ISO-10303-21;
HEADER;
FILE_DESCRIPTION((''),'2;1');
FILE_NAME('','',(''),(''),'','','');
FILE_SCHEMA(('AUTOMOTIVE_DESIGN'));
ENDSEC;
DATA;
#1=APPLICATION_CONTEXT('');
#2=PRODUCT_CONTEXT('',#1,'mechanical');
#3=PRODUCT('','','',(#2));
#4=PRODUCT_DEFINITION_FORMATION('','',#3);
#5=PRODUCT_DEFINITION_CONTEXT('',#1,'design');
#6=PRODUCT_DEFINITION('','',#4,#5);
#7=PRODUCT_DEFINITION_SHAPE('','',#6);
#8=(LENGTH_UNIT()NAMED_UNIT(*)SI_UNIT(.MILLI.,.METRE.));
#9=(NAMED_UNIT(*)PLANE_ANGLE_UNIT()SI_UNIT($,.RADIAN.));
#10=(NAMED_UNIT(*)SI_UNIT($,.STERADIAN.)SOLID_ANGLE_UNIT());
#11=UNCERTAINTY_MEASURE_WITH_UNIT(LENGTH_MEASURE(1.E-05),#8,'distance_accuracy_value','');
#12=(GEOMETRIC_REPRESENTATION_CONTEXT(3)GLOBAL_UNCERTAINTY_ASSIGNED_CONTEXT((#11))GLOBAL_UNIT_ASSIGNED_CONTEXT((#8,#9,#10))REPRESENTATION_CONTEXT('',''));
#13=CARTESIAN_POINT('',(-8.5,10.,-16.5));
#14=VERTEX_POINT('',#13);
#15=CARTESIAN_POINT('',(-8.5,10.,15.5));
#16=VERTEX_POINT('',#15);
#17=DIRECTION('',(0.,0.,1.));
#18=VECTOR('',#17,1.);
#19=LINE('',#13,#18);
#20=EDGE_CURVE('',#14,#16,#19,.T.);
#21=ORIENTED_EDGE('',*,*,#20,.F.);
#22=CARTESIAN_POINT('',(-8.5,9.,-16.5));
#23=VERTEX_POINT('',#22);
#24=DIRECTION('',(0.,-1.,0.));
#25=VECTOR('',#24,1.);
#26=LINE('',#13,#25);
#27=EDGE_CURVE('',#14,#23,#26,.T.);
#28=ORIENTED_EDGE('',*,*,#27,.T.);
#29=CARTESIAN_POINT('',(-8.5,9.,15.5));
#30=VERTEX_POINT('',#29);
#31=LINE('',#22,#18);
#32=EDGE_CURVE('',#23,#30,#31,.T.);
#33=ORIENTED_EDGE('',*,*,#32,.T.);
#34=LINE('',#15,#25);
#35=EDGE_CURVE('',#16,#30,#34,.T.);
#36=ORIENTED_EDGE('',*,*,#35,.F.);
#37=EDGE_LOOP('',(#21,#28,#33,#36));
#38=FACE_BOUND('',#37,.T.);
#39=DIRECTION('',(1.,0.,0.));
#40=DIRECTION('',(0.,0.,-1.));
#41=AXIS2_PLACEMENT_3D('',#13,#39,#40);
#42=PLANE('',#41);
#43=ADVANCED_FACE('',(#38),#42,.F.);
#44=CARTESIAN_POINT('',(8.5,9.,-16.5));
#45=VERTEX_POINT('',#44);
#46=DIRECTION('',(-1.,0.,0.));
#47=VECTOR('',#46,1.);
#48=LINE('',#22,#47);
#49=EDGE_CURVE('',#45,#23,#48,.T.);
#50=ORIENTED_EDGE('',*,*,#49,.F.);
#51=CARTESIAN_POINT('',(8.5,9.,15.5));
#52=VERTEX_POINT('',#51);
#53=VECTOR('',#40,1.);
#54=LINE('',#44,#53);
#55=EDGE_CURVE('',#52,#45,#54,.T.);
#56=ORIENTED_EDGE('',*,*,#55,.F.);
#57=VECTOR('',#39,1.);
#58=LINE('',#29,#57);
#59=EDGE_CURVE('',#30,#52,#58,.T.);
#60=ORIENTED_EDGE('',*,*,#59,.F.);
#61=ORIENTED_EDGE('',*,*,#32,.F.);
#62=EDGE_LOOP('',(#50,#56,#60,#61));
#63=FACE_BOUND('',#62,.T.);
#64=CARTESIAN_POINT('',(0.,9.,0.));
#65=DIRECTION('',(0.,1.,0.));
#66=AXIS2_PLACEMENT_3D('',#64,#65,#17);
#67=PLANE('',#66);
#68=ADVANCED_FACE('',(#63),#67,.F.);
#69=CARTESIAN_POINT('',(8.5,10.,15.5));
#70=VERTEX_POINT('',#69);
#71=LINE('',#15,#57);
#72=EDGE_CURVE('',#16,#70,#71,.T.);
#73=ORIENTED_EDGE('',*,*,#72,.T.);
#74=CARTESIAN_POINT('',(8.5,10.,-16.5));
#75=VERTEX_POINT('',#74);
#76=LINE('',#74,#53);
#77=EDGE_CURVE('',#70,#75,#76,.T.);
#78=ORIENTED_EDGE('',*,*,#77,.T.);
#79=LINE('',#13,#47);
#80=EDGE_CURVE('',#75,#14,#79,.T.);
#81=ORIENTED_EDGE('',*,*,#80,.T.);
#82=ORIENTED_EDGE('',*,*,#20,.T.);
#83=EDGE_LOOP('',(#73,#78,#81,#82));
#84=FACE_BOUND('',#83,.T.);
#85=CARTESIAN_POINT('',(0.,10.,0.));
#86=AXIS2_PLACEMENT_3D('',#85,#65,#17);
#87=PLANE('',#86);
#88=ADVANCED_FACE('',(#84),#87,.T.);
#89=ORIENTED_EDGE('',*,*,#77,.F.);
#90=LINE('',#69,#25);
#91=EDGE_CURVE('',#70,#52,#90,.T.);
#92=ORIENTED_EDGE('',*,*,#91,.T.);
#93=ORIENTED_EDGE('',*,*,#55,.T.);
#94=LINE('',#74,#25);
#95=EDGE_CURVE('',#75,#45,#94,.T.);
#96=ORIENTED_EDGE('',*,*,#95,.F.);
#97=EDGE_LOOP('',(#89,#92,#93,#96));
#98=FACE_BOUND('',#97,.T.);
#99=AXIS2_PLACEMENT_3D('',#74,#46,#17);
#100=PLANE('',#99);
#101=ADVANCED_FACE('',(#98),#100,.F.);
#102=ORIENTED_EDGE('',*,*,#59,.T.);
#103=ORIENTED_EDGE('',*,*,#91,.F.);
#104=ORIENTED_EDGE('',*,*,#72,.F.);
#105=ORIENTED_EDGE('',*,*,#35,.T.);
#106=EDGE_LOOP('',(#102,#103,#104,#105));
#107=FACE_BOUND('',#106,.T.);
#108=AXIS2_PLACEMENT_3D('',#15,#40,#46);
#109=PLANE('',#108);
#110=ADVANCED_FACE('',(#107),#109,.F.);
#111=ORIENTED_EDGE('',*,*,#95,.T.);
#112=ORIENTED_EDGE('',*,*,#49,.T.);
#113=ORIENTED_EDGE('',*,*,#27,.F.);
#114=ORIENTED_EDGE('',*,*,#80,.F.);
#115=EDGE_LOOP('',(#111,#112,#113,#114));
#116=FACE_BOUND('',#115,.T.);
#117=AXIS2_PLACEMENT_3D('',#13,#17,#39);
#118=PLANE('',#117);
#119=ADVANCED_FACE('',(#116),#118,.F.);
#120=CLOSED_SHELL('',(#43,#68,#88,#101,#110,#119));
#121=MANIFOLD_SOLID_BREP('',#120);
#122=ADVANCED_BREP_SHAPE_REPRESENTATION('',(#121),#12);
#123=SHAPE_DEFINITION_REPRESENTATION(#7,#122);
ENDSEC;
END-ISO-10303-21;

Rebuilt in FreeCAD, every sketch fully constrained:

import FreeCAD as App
import Part
import Sketcher
Q = App.Units.Quantity

doc = App.newDocument("Part")
params = doc.addObject("Spreadsheet::Sheet", "Params")
for row, (alias, value) in enumerate([
    ("sketch1_width", "17 mm"),
    ("sketch1_height", "33 mm"),
    ("pad1_length", "10 mm"),
    ("sketch2_width", "15 mm"),
    ("sketch2_height", "32 mm"),
    ("pocket1_length", "8 mm"),
    ("sketch3_diameter", "6 mm"),
    ("sketch4_width", "17 mm"),
    ("sketch4_height", "32 mm"),
    ("pocket3_length", "8 mm"),
    ("sketch5_width", "17 mm"),
    ("sketch5_height", "33 mm"),
    ("pocket4_length", "9 mm"),
    ("sketch6_width", "17 mm"),
    ("sketch6_height", "1 mm"),
    ("pocket5_length", "1 mm"),
    ("sketch7_width", "17 mm"),
    ("sketch7_height", "32 mm"),
    ("pad2_length", "1 mm"),
], start=1):
    params.set(f"A{row}", alias)
    params.set(f"B{row}", "=" + value)
    params.setAlias(f"B{row}", alias)

body = doc.addObject("PartDesign::Body", "Body")

# Sketch on XZ plane
sketch1 = body.newObject("Sketcher::SketchObject", "Sketch")
sketch1.AttachmentSupport = (doc.getObject("XZ_Plane"), [""])
sketch1.MapMode = "FlatFace"
sketch1.addGeometry([
    Part.LineSegment(App.Vector(-8, -16, 0), App.Vector(-8, 16, 0)),
    Part.LineSegment(App.Vector(-8, 16, 0), App.Vector(8, 16, 0)),
    Part.LineSegment(App.Vector(8, 16, 0), App.Vector(8, -16, 0)),
    Part.LineSegment(App.Vector(8, -16, 0), App.Vector(-8, -16, 0)),
], False)
sketch1.addConstraint([
    Sketcher.Constraint("Coincident", 0, 2, 1, 1),
    Sketcher.Constraint("Coincident", 1, 2, 2, 1),
    Sketcher.Constraint("Coincident", 2, 2, 3, 1),
    Sketcher.Constraint("Coincident", 3, 2, 0, 1),
    Sketcher.Constraint("Vertical", 0),
    Sketcher.Constraint("Horizontal", 1),
    Sketcher.Constraint("Vertical", 2),
    Sketcher.Constraint("Horizontal", 3),
    Sketcher.Constraint("Symmetric", 0, 2, 2, 2, -1, 1),
    Sketcher.Constraint("DistanceX", 1, 1, 1, 2, Q("17 mm")),
    Sketcher.Constraint("DistanceY", 0, 1, 0, 2, Q("33 mm")),
])
sketch1.setExpression("Constraints[9]", "Params.sketch1_width")
sketch1.setExpression("Constraints[10]", "Params.sketch1_height")
pad1 = body.newObject("PartDesign::Pad", "Pad")
pad1.Profile = sketch1
pad1.setExpression("Length", "Params.pad1_length")
pad1.Reversed = True

# Sketch on XZ plane
sketch2 = body.newObject("Sketcher::SketchObject", "Sketch001")
sketch2.AttachmentSupport = (doc.getObject("XZ_Plane"), [""])
sketch2.MapMode = "FlatFace"
sketch2.AttachmentOffset = App.Placement(App.Vector(0, 0, -1), App.Rotation())
sketch2.addGeometry([
    Part.LineSegment(App.Vector(-8, -16, 0), App.Vector(-8, 16, 0)),
    Part.LineSegment(App.Vector(-8, 16, 0), App.Vector(8, 16, 0)),
    Part.LineSegment(App.Vector(8, 16, 0), App.Vector(8, -16, 0)),
    Part.LineSegment(App.Vector(8, -16, 0), App.Vector(-8, -16, 0)),
], False)
sketch2.addConstraint([
    Sketcher.Constraint("Coincident", 0, 2, 1, 1),
    Sketcher.Constraint("Coincident", 1, 2, 2, 1),
    Sketcher.Constraint("Coincident", 2, 2, 3, 1),
    Sketcher.Constraint("Coincident", 3, 2, 0, 1),
    Sketcher.Constraint("Vertical", 0),
    Sketcher.Constraint("Horizontal", 1),
    Sketcher.Constraint("Vertical", 2),
    Sketcher.Constraint("Horizontal", 3),
    Sketcher.Constraint("DistanceX", 1, 1, 1, 2, Q("15 mm")),
    Sketcher.Constraint("DistanceY", 0, 1, 0, 2, Q("32 mm")),
    Sketcher.Constraint("DistanceX", 0, 2, -1, 1, Q("7.5 mm")),
    Sketcher.Constraint("DistanceY", -1, 1, 0, 2, Q("15.5 mm")),
])
sketch2.setExpression("Constraints[8]", "Params.sketch2_width")
sketch2.setExpression("Constraints[9]", "Params.sketch2_height")
pocket1 = body.newObject("PartDesign::Pocket", "Pocket")
pocket1.Profile = sketch2
pocket1.setExpression("Length", "Params.pocket1_length")

# Sketch on XY plane
sketch3 = body.newObject("Sketcher::SketchObject", "Sketch002")
sketch3.AttachmentSupport = (doc.getObject("XY_Plane"), [""])
sketch3.MapMode = "FlatFace"
sketch3.addGeometry(Part.Circle(App.Vector(0, 6, 0), App.Vector(0, 0, 1), 3), False)
sketch3.addConstraint([
    Sketcher.Constraint("PointOnObject", 0, 3, -2),
    Sketcher.Constraint("Diameter", 0, Q("6 mm")),
    Sketcher.Constraint("DistanceY", -1, 1, 0, 3, Q("6 mm")),
])
sketch3.setExpression("Constraints[1]", "Params.sketch3_diameter")
pocket2 = body.newObject("PartDesign::Pocket", "Pocket001")
pocket2.Profile = sketch3
pocket2.Type = "ThroughAll"
pocket2.Reversed = True

# Sketch on XZ plane
sketch4 = body.newObject("Sketcher::SketchObject", "Sketch003")
sketch4.AttachmentSupport = (doc.getObject("XZ_Plane"), [""])
sketch4.MapMode = "FlatFace"
sketch4.AttachmentOffset = App.Placement(App.Vector(0, 0, -9), App.Rotation())
sketch4.addGeometry([
    Part.LineSegment(App.Vector(-8, -16, 0), App.Vector(-8, 16, 0)),
    Part.LineSegment(App.Vector(-8, 16, 0), App.Vector(8, 16, 0)),
    Part.LineSegment(App.Vector(8, 16, 0), App.Vector(8, -16, 0)),
    Part.LineSegment(App.Vector(8, -16, 0), App.Vector(-8, -16, 0)),
], False)
sketch4.addConstraint([
    Sketcher.Constraint("Coincident", 0, 2, 1, 1),
    Sketcher.Constraint("Coincident", 1, 2, 2, 1),
    Sketcher.Constraint("Coincident", 2, 2, 3, 1),
    Sketcher.Constraint("Coincident", 3, 2, 0, 1),
    Sketcher.Constraint("Vertical", 0),
    Sketcher.Constraint("Horizontal", 1),
    Sketcher.Constraint("Vertical", 2),
    Sketcher.Constraint("Horizontal", 3),
    Sketcher.Constraint("DistanceX", 1, 1, 1, 2, Q("17 mm")),
    Sketcher.Constraint("DistanceY", 0, 1, 0, 2, Q("32 mm")),
    Sketcher.Constraint("DistanceX", 0, 2, -1, 1, Q("8.5 mm")),
    Sketcher.Constraint("DistanceY", -1, 1, 0, 2, Q("15.5 mm")),
])
sketch4.setExpression("Constraints[8]", "Params.sketch4_width")
sketch4.setExpression("Constraints[9]", "Params.sketch4_height")
pocket3 = body.newObject("PartDesign::Pocket", "Pocket002")
pocket3.Profile = sketch4
pocket3.setExpression("Length", "Params.pocket3_length")

# Sketch on XZ plane
sketch5 = body.newObject("Sketcher::SketchObject", "Sketch004")
sketch5.AttachmentSupport = (doc.getObject("XZ_Plane"), [""])
sketch5.MapMode = "FlatFace"
sketch5.addGeometry([
    Part.LineSegment(App.Vector(-8, 16, 0), App.Vector(-8, -16, 0)),
    Part.LineSegment(App.Vector(-8, -16, 0), App.Vector(8, -16, 0)),
    Part.LineSegment(App.Vector(8, -16, 0), App.Vector(8, 16, 0)),
    Part.LineSegment(App.Vector(8, 16, 0), App.Vector(-8, 16, 0)),
], False)
sketch5.addConstraint([
    Sketcher.Constraint("Coincident", 0, 2, 1, 1),
    Sketcher.Constraint("Coincident", 1, 2, 2, 1),
    Sketcher.Constraint("Coincident", 2, 2, 3, 1),
    Sketcher.Constraint("Coincident", 3, 2, 0, 1),
    Sketcher.Constraint("Vertical", 0),
    Sketcher.Constraint("Horizontal", 1),
    Sketcher.Constraint("Vertical", 2),
    Sketcher.Constraint("Horizontal", 3),
    Sketcher.Constraint("Symmetric", 0, 2, 2, 2, -1, 1),
    Sketcher.Constraint("DistanceX", 1, 1, 1, 2, Q("17 mm")),
    Sketcher.Constraint("DistanceY", 0, 2, 0, 1, Q("33 mm")),
])
sketch5.setExpression("Constraints[9]", "Params.sketch5_width")
sketch5.setExpression("Constraints[10]", "Params.sketch5_height")
pocket4 = body.newObject("PartDesign::Pocket", "Pocket003")
pocket4.Profile = sketch5
pocket4.setExpression("Length", "Params.pocket4_length")

# Sketch on XY plane
sketch6 = body.newObject("Sketcher::SketchObject", "Sketch005")
sketch6.AttachmentSupport = (doc.getObject("XY_Plane"), [""])
sketch6.MapMode = "FlatFace"
sketch6.AttachmentOffset = App.Placement(App.Vector(0, 0, 16.5), App.Rotation())
sketch6.addGeometry([
    Part.LineSegment(App.Vector(-8.5, 10, 0), App.Vector(-8.5, 9, 0)),
    Part.LineSegment(App.Vector(-8.5, 9, 0), App.Vector(8.5, 9, 0)),
    Part.LineSegment(App.Vector(8.5, 9, 0), App.Vector(8.5, 10, 0)),
    Part.LineSegment(App.Vector(8.5, 10, 0), App.Vector(-8.5, 10, 0)),
], False)
sketch6.addConstraint([
    Sketcher.Constraint("Coincident", 0, 2, 1, 1),
    Sketcher.Constraint("Coincident", 1, 2, 2, 1),
    Sketcher.Constraint("Coincident", 2, 2, 3, 1),
    Sketcher.Constraint("Coincident", 3, 2, 0, 1),
    Sketcher.Constraint("Vertical", 0),
    Sketcher.Constraint("Horizontal", 1),
    Sketcher.Constraint("Vertical", 2),
    Sketcher.Constraint("Horizontal", 3),
    Sketcher.Constraint("DistanceX", 1, 1, 1, 2, Q("17 mm")),
    Sketcher.Constraint("DistanceY", 0, 2, 0, 1, Q("1 mm")),
    Sketcher.Constraint("DistanceY", -1, 1, 0, 2, Q("9 mm")),
    Sketcher.Constraint("DistanceX", 0, 2, -1, 1, Q("8.5 mm")),
])
sketch6.setExpression("Constraints[8]", "Params.sketch6_width")
sketch6.setExpression("Constraints[9]", "Params.sketch6_height")
pocket5 = body.newObject("PartDesign::Pocket", "Pocket004")
pocket5.Profile = sketch6
pocket5.setExpression("Length", "Params.pocket5_length")
body2 = doc.addObject("PartDesign::Body", "Body001")

# Sketch on XZ plane
sketch7 = body2.newObject("Sketcher::SketchObject", "Sketch006")
sketch7.AttachmentSupport = (doc.getObject("XZ_Plane001"), [""])
sketch7.MapMode = "FlatFace"
sketch7.AttachmentOffset = App.Placement(App.Vector(0, 0, -9), App.Rotation())
sketch7.addGeometry([
    Part.LineSegment(App.Vector(-8, -16, 0), App.Vector(-8, 16, 0)),
    Part.LineSegment(App.Vector(-8, 16, 0), App.Vector(8, 16, 0)),
    Part.LineSegment(App.Vector(8, 16, 0), App.Vector(8, -16, 0)),
    Part.LineSegment(App.Vector(8, -16, 0), App.Vector(-8, -16, 0)),
], False)
sketch7.addConstraint([
    Sketcher.Constraint("Coincident", 0, 2, 1, 1),
    Sketcher.Constraint("Coincident", 1, 2, 2, 1),
    Sketcher.Constraint("Coincident", 2, 2, 3, 1),
    Sketcher.Constraint("Coincident", 3, 2, 0, 1),
    Sketcher.Constraint("Vertical", 0),
    Sketcher.Constraint("Horizontal", 1),
    Sketcher.Constraint("Vertical", 2),
    Sketcher.Constraint("Horizontal", 3),
    Sketcher.Constraint("DistanceX", 1, 1, 1, 2, Q("17 mm")),
    Sketcher.Constraint("DistanceY", 0, 1, 0, 2, Q("32 mm")),
    Sketcher.Constraint("DistanceX", 0, 2, -1, 1, Q("8.5 mm")),
    Sketcher.Constraint("DistanceY", -1, 1, 0, 2, Q("15.5 mm")),
])
sketch7.setExpression("Constraints[8]", "Params.sketch7_width")
sketch7.setExpression("Constraints[9]", "Params.sketch7_height")
pad2 = body2.newObject("PartDesign::Pad", "Pad001")
pad2.Profile = sketch7
pad2.setExpression("Length", "Params.pad2_length")
pad2.Reversed = True

doc.recompute()
